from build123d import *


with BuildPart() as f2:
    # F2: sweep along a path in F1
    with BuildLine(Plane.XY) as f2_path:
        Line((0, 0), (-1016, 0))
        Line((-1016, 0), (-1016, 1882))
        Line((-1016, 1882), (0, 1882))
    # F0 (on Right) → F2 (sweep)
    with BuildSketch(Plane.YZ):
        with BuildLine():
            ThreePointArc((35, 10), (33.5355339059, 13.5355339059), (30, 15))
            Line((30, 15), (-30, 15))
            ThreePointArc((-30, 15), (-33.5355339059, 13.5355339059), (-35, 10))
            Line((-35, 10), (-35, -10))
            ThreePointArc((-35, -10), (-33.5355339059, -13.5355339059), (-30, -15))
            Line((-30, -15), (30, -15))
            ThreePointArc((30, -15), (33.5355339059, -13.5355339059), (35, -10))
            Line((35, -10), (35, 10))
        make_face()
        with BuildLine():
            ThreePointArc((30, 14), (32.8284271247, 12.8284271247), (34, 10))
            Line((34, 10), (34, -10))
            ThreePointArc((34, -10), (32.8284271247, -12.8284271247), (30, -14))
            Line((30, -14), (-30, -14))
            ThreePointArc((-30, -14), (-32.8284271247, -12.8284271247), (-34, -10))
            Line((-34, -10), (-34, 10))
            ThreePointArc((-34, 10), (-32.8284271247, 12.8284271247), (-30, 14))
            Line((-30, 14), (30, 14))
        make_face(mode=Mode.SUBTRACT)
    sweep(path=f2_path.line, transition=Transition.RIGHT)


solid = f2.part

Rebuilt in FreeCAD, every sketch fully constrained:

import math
import FreeCAD as App
import Part
import Sketcher
from FreeCAD import Vector

doc = App.newDocument("Part")
body = doc.addObject("PartDesign::Body", "Body")

sketch1 = doc.addObject("Sketcher::SketchObject", "Sketch")
body.addObject(sketch1)
sketch1.AttachmentSupport = (doc.YZ_Plane, [""])
sketch1.MapMode = "FlatFace"
sketch1.addGeometry(Part.ArcOfCircle(Part.Circle(Vector(30, 10, 0), Vector(0, 0, 1), 5), math.radians(0), math.radians(90)), False)
sketch1.addGeometry(Part.LineSegment(Vector(30, 15, 0), Vector(-30, 15, 0)), False)
sketch1.addGeometry(Part.ArcOfCircle(Part.Circle(Vector(-30, 10, 0), Vector(0, 0, 1), 5), math.radians(90), math.radians(180)), False)
sketch1.addGeometry(Part.LineSegment(Vector(-35, 10, 0), Vector(-35, -10, 0)), False)
sketch1.addGeometry(Part.ArcOfCircle(Part.Circle(Vector(-30, -10, 0), Vector(0, 0, 1), 5), math.radians(180), math.radians(270)), False)
sketch1.addGeometry(Part.LineSegment(Vector(-30, -15, 0), Vector(30, -15, 0)), False)
sketch1.addGeometry(Part.ArcOfCircle(Part.Circle(Vector(30, -10, 0), Vector(0, 0, 1), 5), math.radians(-90), math.radians(0)), False)
sketch1.addGeometry(Part.LineSegment(Vector(35, -10, 0), Vector(35, 10, 0)), False)
sketch1.addGeometry(Part.LineSegment(Vector(-30, 14, 0), Vector(30, 14, 0)), False)
sketch1.addGeometry(Part.ArcOfCircle(Part.Circle(Vector(30, 10, 0), Vector(0, 0, 1), 4), math.radians(0), math.radians(90)), False)
sketch1.addGeometry(Part.LineSegment(Vector(34, 10, 0), Vector(34, -10, 0)), False)
sketch1.addGeometry(Part.ArcOfCircle(Part.Circle(Vector(30, -10, 0), Vector(0, 0, 1), 4), math.radians(-90), math.radians(0)), False)
sketch1.addGeometry(Part.LineSegment(Vector(30, -14, 0), Vector(-30, -14, 0)), False)
sketch1.addGeometry(Part.ArcOfCircle(Part.Circle(Vector(-30, -10, 0), Vector(0, 0, 1), 4), math.radians(180), math.radians(270)), False)
sketch1.addGeometry(Part.LineSegment(Vector(-34, -10, 0), Vector(-34, 10, 0)), False)
sketch1.addGeometry(Part.ArcOfCircle(Part.Circle(Vector(-30, 10, 0), Vector(0, 0, 1), 4), math.radians(90), math.radians(180)), False)
sketch1.addConstraint(Sketcher.Constraint("Tangent", 0, 2, 1, 1))
sketch1.addConstraint(Sketcher.Constraint("Tangent", 1, 2, 2, 1))
sketch1.addConstraint(Sketcher.Constraint("Tangent", 2, 2, 3, 1))
sketch1.addConstraint(Sketcher.Constraint("Tangent", 3, 2, 4, 1))
sketch1.addConstraint(Sketcher.Constraint("Tangent", 4, 2, 5, 1))
sketch1.addConstraint(Sketcher.Constraint("Tangent", 5, 2, 6, 1))
sketch1.addConstraint(Sketcher.Constraint("Tangent", 6, 2, 7, 1))
sketch1.addConstraint(Sketcher.Constraint("Tangent", 7, 2, 0, 1))
sketch1.addConstraint(Sketcher.Constraint("Tangent", 8, 2, 9, 2))
sketch1.addConstraint(Sketcher.Constraint("Tangent", 9, 1, 10, 1))
sketch1.addConstraint(Sketcher.Constraint("Tangent", 10, 2, 11, 2))
sketch1.addConstraint(Sketcher.Constraint("Tangent", 11, 1, 12, 1))
sketch1.addConstraint(Sketcher.Constraint("Tangent", 12, 2, 13, 2))
sketch1.addConstraint(Sketcher.Constraint("Tangent", 13, 1, 14, 1))
sketch1.addConstraint(Sketcher.Constraint("Tangent", 14, 2, 15, 2))
sketch1.addConstraint(Sketcher.Constraint("Tangent", 15, 1, 8, 1))
sketch1.addConstraint(Sketcher.Constraint("Horizontal", 1))
sketch1.addConstraint(Sketcher.Constraint("Vertical", 3))
sketch1.addConstraint(Sketcher.Constraint("Horizontal", 5))
sketch1.addConstraint(Sketcher.Constraint("Vertical", 7))
sketch1.addConstraint(Sketcher.Constraint("Horizontal", 8))
sketch1.addConstraint(Sketcher.Constraint("Vertical", 10))
sketch1.addConstraint(Sketcher.Constraint("Horizontal", 12))
sketch1.addConstraint(Sketcher.Constraint("Vertical", 14))
sketch1.addConstraint(Sketcher.Constraint("Coincident", 9, 3, 0, 3))
sketch1.addConstraint(Sketcher.Constraint("Coincident", 11, 3, 6, 3))
sketch1.addConstraint(Sketcher.Constraint("Coincident", 13, 3, 4, 3))
sketch1.addConstraint(Sketcher.Constraint("Equal", 0, 2))
sketch1.addConstraint(Sketcher.Constraint("Equal", 2, 4))
sketch1.addConstraint(Sketcher.Constraint("Equal", 4, 6))
sketch1.addConstraint(Sketcher.Constraint("Equal", 13, 15))
sketch1.addConstraint(Sketcher.Constraint("Symmetric", 0, 3, 4, 3, -1, 1))
sketch1.addConstraint(Sketcher.Constraint("Radius", 0, 5.0))
sketch1.addConstraint(Sketcher.Constraint("Radius", 9, 4.0))
sketch1.addConstraint(Sketcher.Constraint("DistanceX", 1, 2, 1, 1, 60.0))
sketch1.addConstraint(Sketcher.Constraint("DistanceY", 3, 2, 3, 1, 20.0))

sketch2 = doc.addObject("Sketcher::SketchObject", "Sketch001")
body.addObject(sketch2)
sketch2.AttachmentSupport = (doc.XY_Plane, [""])
sketch2.MapMode = "FlatFace"
sketch2.addGeometry(Part.LineSegment(Vector(0, 0, 0), Vector(-1016, 0, 0)), False)
sketch2.addGeometry(Part.LineSegment(Vector(-1016, 0, 0), Vector(-1016, 1882, 0)), False)
sketch2.addGeometry(Part.LineSegment(Vector(-1016, 1882, 0), Vector(0, 1882, 0)), False)
sketch2.addConstraint(Sketcher.Constraint("Coincident", 0, 2, 1, 1))
sketch2.addConstraint(Sketcher.Constraint("Coincident", 1, 2, 2, 1))
sketch2.addConstraint(Sketcher.Constraint("Horizontal", 0))
sketch2.addConstraint(Sketcher.Constraint("Vertical", 1))
sketch2.addConstraint(Sketcher.Constraint("Horizontal", 2))
sketch2.addConstraint(Sketcher.Constraint("Coincident", 0, 1, -1, 1))
sketch2.addConstraint(Sketcher.Constraint("PointOnObject", 2, 2, -2))
sketch2.addConstraint(Sketcher.Constraint("DistanceX", 0, 2, 0, 1, 1016.0))
sketch2.addConstraint(Sketcher.Constraint("DistanceY", 1, 1, 1, 2, 1882.0))
doc.recompute()

additivepipe = doc.addObject("PartDesign::AdditivePipe", "AdditivePipe")
body.addObject(additivepipe)
additivepipe.Profile = sketch1
additivepipe.Spine = (sketch2, ["Edge1", "Edge2", "Edge3"])
additivepipe.Transition = "Right corner"

doc.recompute()
